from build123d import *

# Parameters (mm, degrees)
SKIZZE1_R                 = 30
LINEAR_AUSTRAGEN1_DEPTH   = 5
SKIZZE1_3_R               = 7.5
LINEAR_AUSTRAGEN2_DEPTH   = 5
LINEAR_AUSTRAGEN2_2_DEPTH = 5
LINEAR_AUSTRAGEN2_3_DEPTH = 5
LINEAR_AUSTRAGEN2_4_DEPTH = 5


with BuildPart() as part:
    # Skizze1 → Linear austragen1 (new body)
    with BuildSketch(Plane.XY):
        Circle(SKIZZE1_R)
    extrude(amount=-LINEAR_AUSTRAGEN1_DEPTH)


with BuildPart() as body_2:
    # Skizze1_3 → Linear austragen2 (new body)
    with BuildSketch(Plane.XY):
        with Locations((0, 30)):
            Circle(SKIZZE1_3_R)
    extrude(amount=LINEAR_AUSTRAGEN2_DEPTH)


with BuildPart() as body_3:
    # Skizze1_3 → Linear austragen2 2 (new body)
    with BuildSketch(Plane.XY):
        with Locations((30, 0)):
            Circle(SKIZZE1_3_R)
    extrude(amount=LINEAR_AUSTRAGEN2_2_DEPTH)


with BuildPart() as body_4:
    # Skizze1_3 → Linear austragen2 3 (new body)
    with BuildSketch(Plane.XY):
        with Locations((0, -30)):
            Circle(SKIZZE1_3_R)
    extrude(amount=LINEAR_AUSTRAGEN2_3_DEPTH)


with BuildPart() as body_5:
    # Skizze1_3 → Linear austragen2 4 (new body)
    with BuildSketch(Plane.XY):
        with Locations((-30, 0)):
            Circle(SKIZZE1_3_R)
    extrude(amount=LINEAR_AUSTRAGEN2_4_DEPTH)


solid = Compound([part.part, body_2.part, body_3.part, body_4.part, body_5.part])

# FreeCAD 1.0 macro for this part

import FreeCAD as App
import Part
import Sketcher

V = App.Vector
Q = App.Units.Quantity

doc = App.newDocument("Part")
body = doc.addObject("PartDesign::Body", "Body")

sketch1 = doc.addObject("Sketcher::SketchObject", "Sketch")
body.addObject(sketch1)
sketch1.AttachmentSupport = (doc.XY_Plane, [""])
sketch1.MapMode = "FlatFace"
sketch1.addGeometry(Part.Circle(V(0, 0, 0), V(0, 0, 1), 30), False)
sketch1.addConstraint(Sketcher.Constraint("Coincident", 0, 3, -1, 1))
sketch1.addConstraint(Sketcher.Constraint("Diameter", 0, Q("60 mm")))
pad1 = doc.addObject("PartDesign::Pad", "Pad")
body.addObject(pad1)
pad1.Profile = sketch1
pad1.Length = 5
pad1.Reversed = True
body2 = doc.addObject("PartDesign::Body", "Body001")

sketch2 = doc.addObject("Sketcher::SketchObject", "Sketch001")
body2.addObject(sketch2)
sketch2.AttachmentSupport = (doc.getObject("XY_Plane001"), [""])
sketch2.MapMode = "FlatFace"
sketch2.addGeometry(Part.Circle(V(0, 30, 0), V(0, 0, 1), 7.5), False)
sketch2.addConstraint(Sketcher.Constraint("PointOnObject", 0, 3, -2))
sketch2.addConstraint(Sketcher.Constraint("Diameter", 0, Q("15 mm")))
sketch2.addConstraint(Sketcher.Constraint("DistanceY", -1, 1, 0, 3, Q("30 mm")))
pad2 = doc.addObject("PartDesign::Pad", "Pad001")
body2.addObject(pad2)
pad2.Profile = sketch2
pad2.Length = 5
body3 = doc.addObject("PartDesign::Body", "Body002")

sketch3 = doc.addObject("Sketcher::SketchObject", "Sketch002")
body3.addObject(sketch3)
sketch3.AttachmentSupport = (doc.getObject("XY_Plane002"), [""])
sketch3.MapMode = "FlatFace"
sketch3.addGeometry(Part.Circle(V(30, 0, 0), V(0, 0, 1), 7.5), False)
sketch3.addConstraint(Sketcher.Constraint("PointOnObject", 0, 3, -1))
sketch3.addConstraint(Sketcher.Constraint("Diameter", 0, Q("15 mm")))
sketch3.addConstraint(Sketcher.Constraint("DistanceX", -1, 1, 0, 3, Q("30 mm")))
pad3 = doc.addObject("PartDesign::Pad", "Pad002")
body3.addObject(pad3)
pad3.Profile = sketch3
pad3.Length = 5
body4 = doc.addObject("PartDesign::Body", "Body003")

sketch4 = doc.addObject("Sketcher::SketchObject", "Sketch003")
body4.addObject(sketch4)
sketch4.AttachmentSupport = (doc.getObject("XY_Plane003"), [""])
sketch4.MapMode = "FlatFace"
sketch4.addGeometry(Part.Circle(V(0, -30, 0), V(0, 0, 1), 7.5), False)
sketch4.addConstraint(Sketcher.Constraint("PointOnObject", 0, 3, -2))
sketch4.addConstraint(Sketcher.Constraint("Diameter", 0, Q("15 mm")))
sketch4.addConstraint(Sketcher.Constraint("DistanceY", 0, 3, -1, 1, Q("30 mm")))
pad4 = doc.addObject("PartDesign::Pad", "Pad003")
body4.addObject(pad4)
pad4.Profile = sketch4
pad4.Length = 5
body5 = doc.addObject("PartDesign::Body", "Body004")

sketch5 = doc.addObject("Sketcher::SketchObject", "Sketch004")
body5.addObject(sketch5)
sketch5.AttachmentSupport = (doc.getObject("XY_Plane004"), [""])
sketch5.MapMode = "FlatFace"
sketch5.addGeometry(Part.Circle(V(-30, 0, 0), V(0, 0, 1), 7.5), False)
sketch5.addConstraint(Sketcher.Constraint("PointOnObject", 0, 3, -1))
sketch5.addConstraint(Sketcher.Constraint("Diameter", 0, Q("15 mm")))
sketch5.addConstraint(Sketcher.Constraint("DistanceX", 0, 3, -1, 1, Q("30 mm")))
pad5 = doc.addObject("PartDesign::Pad", "Pad004")
body5.addObject(pad5)
pad5.Profile = sketch5
pad5.Length = 5

doc.recompute()
